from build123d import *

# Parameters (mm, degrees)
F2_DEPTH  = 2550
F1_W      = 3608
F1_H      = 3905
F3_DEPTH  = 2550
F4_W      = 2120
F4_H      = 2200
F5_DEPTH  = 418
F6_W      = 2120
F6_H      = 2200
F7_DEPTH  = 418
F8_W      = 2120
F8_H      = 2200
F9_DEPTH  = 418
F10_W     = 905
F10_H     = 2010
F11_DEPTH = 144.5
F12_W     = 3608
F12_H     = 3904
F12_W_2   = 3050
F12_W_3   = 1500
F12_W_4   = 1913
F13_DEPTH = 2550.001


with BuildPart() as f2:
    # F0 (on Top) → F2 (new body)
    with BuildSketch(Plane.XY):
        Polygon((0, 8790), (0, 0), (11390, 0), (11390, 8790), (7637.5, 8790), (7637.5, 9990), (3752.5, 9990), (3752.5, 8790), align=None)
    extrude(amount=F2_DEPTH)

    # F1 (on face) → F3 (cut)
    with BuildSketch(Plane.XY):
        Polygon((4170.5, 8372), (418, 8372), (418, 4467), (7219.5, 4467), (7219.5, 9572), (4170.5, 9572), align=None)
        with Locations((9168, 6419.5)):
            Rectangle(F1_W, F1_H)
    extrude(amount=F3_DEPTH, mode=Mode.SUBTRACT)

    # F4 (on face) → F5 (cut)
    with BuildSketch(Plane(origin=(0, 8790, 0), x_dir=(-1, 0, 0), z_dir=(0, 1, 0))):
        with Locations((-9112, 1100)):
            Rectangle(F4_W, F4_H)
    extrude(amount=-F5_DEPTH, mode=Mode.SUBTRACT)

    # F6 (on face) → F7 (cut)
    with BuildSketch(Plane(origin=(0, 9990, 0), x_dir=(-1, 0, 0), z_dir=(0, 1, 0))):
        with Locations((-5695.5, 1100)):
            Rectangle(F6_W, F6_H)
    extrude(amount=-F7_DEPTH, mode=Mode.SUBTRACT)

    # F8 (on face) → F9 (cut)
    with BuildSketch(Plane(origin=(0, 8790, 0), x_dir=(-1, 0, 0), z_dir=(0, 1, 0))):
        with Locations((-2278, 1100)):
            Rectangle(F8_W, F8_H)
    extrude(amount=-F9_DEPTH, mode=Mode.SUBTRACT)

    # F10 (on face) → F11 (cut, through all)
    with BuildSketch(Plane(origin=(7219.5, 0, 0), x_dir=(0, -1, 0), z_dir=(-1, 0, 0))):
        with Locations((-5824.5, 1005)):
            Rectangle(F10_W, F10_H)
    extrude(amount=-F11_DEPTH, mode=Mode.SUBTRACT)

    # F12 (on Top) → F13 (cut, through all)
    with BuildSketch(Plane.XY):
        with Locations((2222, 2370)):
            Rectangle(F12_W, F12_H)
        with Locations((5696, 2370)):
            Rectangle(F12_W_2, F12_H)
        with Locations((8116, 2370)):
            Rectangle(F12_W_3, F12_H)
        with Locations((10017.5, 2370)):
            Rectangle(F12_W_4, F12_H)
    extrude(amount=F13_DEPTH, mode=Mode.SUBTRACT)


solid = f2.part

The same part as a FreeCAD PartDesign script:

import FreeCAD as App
import Part
import Sketcher
Q = App.Units.Quantity

doc = App.newDocument("Part")
body = doc.addObject("PartDesign::Body", "Body")

sketch1 = doc.addObject("Sketcher::SketchObject", "Sketch")
body.addObject(sketch1)
sketch1.AttachmentSupport = (doc.XY_Plane, [""])
sketch1.MapMode = "FlatFace"
sketch1.addGeometry([
    Part.LineSegment(App.Vector(0, 8790, 0), App.Vector(0, 0, 0)),
    Part.LineSegment(App.Vector(0, 0, 0), App.Vector(11390, 0, 0)),
    Part.LineSegment(App.Vector(11390, 0, 0), App.Vector(11390, 8790, 0)),
    Part.LineSegment(App.Vector(11390, 8790, 0), App.Vector(7638, 8790, 0)),
    Part.LineSegment(App.Vector(7638, 8790, 0), App.Vector(7638, 9990, 0)),
    Part.LineSegment(App.Vector(7638, 9990, 0), App.Vector(3752, 9990, 0)),
    Part.LineSegment(App.Vector(3752, 9990, 0), App.Vector(3752, 8790, 0)),
    Part.LineSegment(App.Vector(3752, 8790, 0), App.Vector(0, 8790, 0)),
], False)
sketch1.addConstraint([
    Sketcher.Constraint("Coincident", 0, 2, 1, 1),
    Sketcher.Constraint("Coincident", 1, 2, 2, 1),
    Sketcher.Constraint("Coincident", 2, 2, 3, 1),
    Sketcher.Constraint("Coincident", 3, 2, 4, 1),
    Sketcher.Constraint("Coincident", 4, 2, 5, 1),
    Sketcher.Constraint("Coincident", 5, 2, 6, 1),
    Sketcher.Constraint("Coincident", 6, 2, 7, 1),
    Sketcher.Constraint("Coincident", 7, 2, 0, 1),
    Sketcher.Constraint("Vertical", 0),
    Sketcher.Constraint("Horizontal", 1),
    Sketcher.Constraint("Vertical", 2),
    Sketcher.Constraint("Horizontal", 3),
    Sketcher.Constraint("Vertical", 4),
    Sketcher.Constraint("Horizontal", 5),
    Sketcher.Constraint("Vertical", 6),
    Sketcher.Constraint("Horizontal", 7),
    Sketcher.Constraint("Coincident", 0, 2, -1, 1),
    Sketcher.Constraint("Horizontal", 3, 2, 6, 2),
    Sketcher.Constraint("Equal", 3, 7),
    Sketcher.Constraint("DistanceX", 1, 1, 1, 2, Q("11390 mm")),
    Sketcher.Constraint("DistanceX", 5, 2, 5, 1, Q("3885 mm")),
    Sketcher.Constraint("DistanceY", 0, 2, 0, 1, Q("8790 mm")),
    Sketcher.Constraint("DistanceY", 4, 1, 4, 2, Q("1200 mm")),
])
pad1 = doc.addObject("PartDesign::Pad", "Pad")
body.addObject(pad1)
pad1.Profile = sketch1
pad1.Length = 2550

sketch2 = doc.addObject("Sketcher::SketchObject", "Sketch001")
body.addObject(sketch2)
sketch2.AttachmentSupport = (doc.XY_Plane, [""])
sketch2.MapMode = "FlatFace"
sketch2.addGeometry([
    Part.LineSegment(App.Vector(4170, 8372, 0), App.Vector(418, 8372, 0)),
    Part.LineSegment(App.Vector(418, 8372, 0), App.Vector(418, 4467, 0)),
    Part.LineSegment(App.Vector(418, 4467, 0), App.Vector(7220, 4467, 0)),
    Part.LineSegment(App.Vector(7220, 4467, 0), App.Vector(7220, 9572, 0)),
    Part.LineSegment(App.Vector(7220, 9572, 0), App.Vector(4170, 9572, 0)),
    Part.LineSegment(App.Vector(4170, 9572, 0), App.Vector(4170, 8372, 0)),
    Part.LineSegment(App.Vector(7364, 8372, 0), App.Vector(7364, 4467, 0)),
    Part.LineSegment(App.Vector(7364, 4467, 0), App.Vector(10972, 4467, 0)),
    Part.LineSegment(App.Vector(10972, 4467, 0), App.Vector(10972, 8372, 0)),
    Part.LineSegment(App.Vector(10972, 8372, 0), App.Vector(7364, 8372, 0)),
], False)
sketch2.addConstraint([
    Sketcher.Constraint("Coincident", 0, 2, 1, 1),
    Sketcher.Constraint("Coincident", 1, 2, 2, 1),
    Sketcher.Constraint("Coincident", 2, 2, 3, 1),
    Sketcher.Constraint("Coincident", 3, 2, 4, 1),
    Sketcher.Constraint("Coincident", 4, 2, 5, 1),
    Sketcher.Constraint("Coincident", 5, 2, 0, 1),
    Sketcher.Constraint("Coincident", 6, 2, 7, 1),
    Sketcher.Constraint("Coincident", 7, 2, 8, 1),
    Sketcher.Constraint("Coincident", 8, 2, 9, 1),
    Sketcher.Constraint("Coincident", 9, 2, 6, 1),
    Sketcher.Constraint("Horizontal", 0),
    Sketcher.Constraint("Vertical", 1),
    Sketcher.Constraint("Horizontal", 2),
    Sketcher.Constraint("Vertical", 3),
    Sketcher.Constraint("Horizontal", 4),
    Sketcher.Constraint("Vertical", 5),
    Sketcher.Constraint("Vertical", 6),
    Sketcher.Constraint("Horizontal", 7),
    Sketcher.Constraint("Vertical", 8),
    Sketcher.Constraint("Horizontal", 9),
    Sketcher.Constraint("Horizontal", 2, 2, 6, 2),
    Sketcher.Constraint("Horizontal", 5, 2, 8, 2),
    Sketcher.Constraint("DistanceX", 4, 2, 4, 1, Q("3049 mm")),
    Sketcher.Constraint("DistanceX", 7, 1, 7, 2, Q("3608 mm")),
    Sketcher.Constraint("DistanceY", 1, 2, 1, 1, Q("3905 mm")),
    Sketcher.Constraint("DistanceY", 3, 1, 3, 2, Q("5105 mm")),
    Sketcher.Constraint("DistanceX", 0, 2, 0, 1, Q("3752.5 mm")),
    Sketcher.Constraint("DistanceX", -1, 1, 0, 2, Q("418 mm")),
    Sketcher.Constraint("DistanceY", -1, 1, 0, 2, Q("8372 mm")),
    Sketcher.Constraint("DistanceX", -1, 1, 6, 2, Q("7364 mm")),
])
pocket1 = doc.addObject("PartDesign::Pocket", "Pocket")
body.addObject(pocket1)
pocket1.Profile = sketch2
pocket1.Length = 2550
pocket1.Reversed = True

sketch3 = doc.addObject("Sketcher::SketchObject", "Sketch002")
body.addObject(sketch3)
sketch3.AttachmentSupport = (doc.XZ_Plane, [""])
sketch3.MapMode = "FlatFace"
sketch3.AttachmentOffset = App.Placement(App.Vector(0, 0, -8790), App.Rotation())
sketch3.addGeometry([
    Part.LineSegment(App.Vector(10172, 2200, 0), App.Vector(10172, 0, 0)),
    Part.LineSegment(App.Vector(10172, 0, 0), App.Vector(8052, 0, 0)),
    Part.LineSegment(App.Vector(8052, 0, 0), App.Vector(8052, 2200, 0)),
    Part.LineSegment(App.Vector(8052, 2200, 0), App.Vector(10172, 2200, 0)),
], False)
sketch3.addConstraint([
    Sketcher.Constraint("Coincident", 0, 2, 1, 1),
    Sketcher.Constraint("Coincident", 1, 2, 2, 1),
    Sketcher.Constraint("Coincident", 2, 2, 3, 1),
    Sketcher.Constraint("Coincident", 3, 2, 0, 1),
    Sketcher.Constraint("Vertical", 0),
    Sketcher.Constraint("Horizontal", 1),
    Sketcher.Constraint("Vertical", 2),
    Sketcher.Constraint("Horizontal", 3),
    Sketcher.Constraint("PointOnObject", 0, 2, -1),
    Sketcher.Constraint("DistanceX", 1, 2, 1, 1, Q("2120 mm")),
    Sketcher.Constraint("DistanceY", 0, 2, 0, 1, Q("2200 mm")),
    Sketcher.Constraint("DistanceX", -1, 1, 0, 2, Q("10172 mm")),
])
pocket2 = doc.addObject("PartDesign::Pocket", "Pocket001")
body.addObject(pocket2)
pocket2.Profile = sketch3
pocket2.Length = 418
pocket2.Reversed = True

sketch4 = doc.addObject("Sketcher::SketchObject", "Sketch003")
body.addObject(sketch4)
sketch4.AttachmentSupport = (doc.XZ_Plane, [""])
sketch4.MapMode = "FlatFace"
sketch4.AttachmentOffset = App.Placement(App.Vector(0, 0, -9990), App.Rotation())
sketch4.addGeometry([
    Part.LineSegment(App.Vector(6756, 2200, 0), App.Vector(6756, 0, 0)),
    Part.LineSegment(App.Vector(6756, 0, 0), App.Vector(4636, 0, 0)),
    Part.LineSegment(App.Vector(4636, 0, 0), App.Vector(4636, 2200, 0)),
    Part.LineSegment(App.Vector(4636, 2200, 0), App.Vector(6756, 2200, 0)),
], False)
sketch4.addConstraint([
    Sketcher.Constraint("Coincident", 0, 2, 1, 1),
    Sketcher.Constraint("Coincident", 1, 2, 2, 1),
    Sketcher.Constraint("Coincident", 2, 2, 3, 1),
    Sketcher.Constraint("Coincident", 3, 2, 0, 1),
    Sketcher.Constraint("Vertical", 0),
    Sketcher.Constraint("Horizontal", 1),
    Sketcher.Constraint("Vertical", 2),
    Sketcher.Constraint("Horizontal", 3),
    Sketcher.Constraint("PointOnObject", 0, 2, -1),
    Sketcher.Constraint("DistanceX", 1, 2, 1, 1, Q("2120 mm")),
    Sketcher.Constraint("DistanceY", 0, 2, 0, 1, Q("2200 mm")),
    Sketcher.Constraint("DistanceX", -1, 1, 0, 2, Q("6755.5 mm")),
])
pocket3 = doc.addObject("PartDesign::Pocket", "Pocket002")
body.addObject(pocket3)
pocket3.Profile = sketch4
pocket3.Length = 418
pocket3.Reversed = True

sketch5 = doc.addObject("Sketcher::SketchObject", "Sketch004")
body.addObject(sketch5)
sketch5.AttachmentSupport = (doc.XZ_Plane, [""])
sketch5.MapMode = "FlatFace"
sketch5.AttachmentOffset = App.Placement(App.Vector(0, 0, -8790), App.Rotation())
sketch5.addGeometry([
    Part.LineSegment(App.Vector(3338, 2200, 0), App.Vector(3338, 0, 0)),
    Part.LineSegment(App.Vector(3338, 0, 0), App.Vector(1218, 0, 0)),
    Part.LineSegment(App.Vector(1218, 0, 0), App.Vector(1218, 2200, 0)),
    Part.LineSegment(App.Vector(1218, 2200, 0), App.Vector(3338, 2200, 0)),
], False)
sketch5.addConstraint([
    Sketcher.Constraint("Coincident", 0, 2, 1, 1),
    Sketcher.Constraint("Coincident", 1, 2, 2, 1),
    Sketcher.Constraint("Coincident", 2, 2, 3, 1),
    Sketcher.Constraint("Coincident", 3, 2, 0, 1),
    Sketcher.Constraint("Vertical", 0),
    Sketcher.Constraint("Horizontal", 1),
    Sketcher.Constraint("Vertical", 2),
    Sketcher.Constraint("Horizontal", 3),
    Sketcher.Constraint("PointOnObject", 0, 2, -1),
    Sketcher.Constraint("DistanceX", 1, 2, 1, 1, Q("2120 mm")),
    Sketcher.Constraint("DistanceY", 0, 2, 0, 1, Q("2200 mm")),
    Sketcher.Constraint("DistanceX", -1, 1, 0, 2, Q("3338 mm")),
])
pocket4 = doc.addObject("PartDesign::Pocket", "Pocket003")
body.addObject(pocket4)
pocket4.Profile = sketch5
pocket4.Length = 418
pocket4.Reversed = True

sketch6 = doc.addObject("Sketcher::SketchObject", "Sketch005")
body.addObject(sketch6)
sketch6.AttachmentSupport = (doc.YZ_Plane, [""])
sketch6.MapMode = "FlatFace"
sketch6.AttachmentOffset = App.Placement(App.Vector(0, 0, 7219.5), App.Rotation())
sketch6.addGeometry([
    Part.LineSegment(App.Vector(6277, 2010, 0), App.Vector(6277, 0, 0)),
    Part.LineSegment(App.Vector(6277, 0, 0), App.Vector(5372, 0, 0)),
    Part.LineSegment(App.Vector(5372, 0, 0), App.Vector(5372, 2010, 0)),
    Part.LineSegment(App.Vector(5372, 2010, 0), App.Vector(6277, 2010, 0)),
], False)
sketch6.addConstraint([
    Sketcher.Constraint("Coincident", 0, 2, 1, 1),
    Sketcher.Constraint("Coincident", 1, 2, 2, 1),
    Sketcher.Constraint("Coincident", 2, 2, 3, 1),
    Sketcher.Constraint("Coincident", 3, 2, 0, 1),
    Sketcher.Constraint("Vertical", 0),
    Sketcher.Constraint("Horizontal", 1),
    Sketcher.Constraint("Vertical", 2),
    Sketcher.Constraint("Horizontal", 3),
    Sketcher.Constraint("PointOnObject", 0, 2, -1),
    Sketcher.Constraint("DistanceX", 1, 2, 1, 1, Q("905 mm")),
    Sketcher.Constraint("DistanceY", 0, 2, 0, 1, Q("2010 mm")),
    Sketcher.Constraint("DistanceX", -1, 1, 0, 2, Q("6277 mm")),
])
pocket5 = doc.addObject("PartDesign::Pocket", "Pocket004")
body.addObject(pocket5)
pocket5.Profile = sketch6
pocket5.Length = 144.5
pocket5.Reversed = True

sketch7 = doc.addObject("Sketcher::SketchObject", "Sketch006")
body.addObject(sketch7)
sketch7.AttachmentSupport = (doc.XY_Plane, [""])
sketch7.MapMode = "FlatFace"
sketch7.addGeometry([
    Part.LineSegment(App.Vector(418, 4322, 0), App.Vector(418, 418, 0)),
    Part.LineSegment(App.Vector(418, 418, 0), App.Vector(4026, 418, 0)),
    Part.LineSegment(App.Vector(4026, 418, 0), App.Vector(4026, 4322, 0)),
    Part.LineSegment(App.Vector(4026, 4322, 0), App.Vector(418, 4322, 0)),
    Part.LineSegment(App.Vector(4171, 4322, 0), App.Vector(4171, 418, 0)),
    Part.LineSegment(App.Vector(4171, 418, 0), App.Vector(7221, 418, 0)),
    Part.LineSegment(App.Vector(7221, 418, 0), App.Vector(7221, 4322, 0)),
    Part.LineSegment(App.Vector(7221, 4322, 0), App.Vector(4171, 4322, 0)),
    Part.LineSegment(App.Vector(7366, 4322, 0), App.Vector(7366, 418, 0)),
    Part.LineSegment(App.Vector(7366, 418, 0), App.Vector(8866, 418, 0)),
    Part.LineSegment(App.Vector(8866, 418, 0), App.Vector(8866, 4322, 0)),
    Part.LineSegment(App.Vector(8866, 4322, 0), App.Vector(7366, 4322, 0)),
    Part.LineSegment(App.Vector(9061, 4322, 0), App.Vector(9061, 418, 0)),
    Part.LineSegment(App.Vector(9061, 418, 0), App.Vector(10974, 418, 0)),
    Part.LineSegment(App.Vector(10974, 418, 0), App.Vector(10974, 4322, 0)),
    Part.LineSegment(App.Vector(10974, 4322, 0), App.Vector(9061, 4322, 0)),
], False)
sketch7.addConstraint([
    Sketcher.Constraint("Coincident", 0, 2, 1, 1),
    Sketcher.Constraint("Coincident", 1, 2, 2, 1),
    Sketcher.Constraint("Coincident", 2, 2, 3, 1),
    Sketcher.Constraint("Coincident", 3, 2, 0, 1),
    Sketcher.Constraint("Coincident", 4, 2, 5, 1),
    Sketcher.Constraint("Coincident", 5, 2, 6, 1),
    Sketcher.Constraint("Coincident", 6, 2, 7, 1),
    Sketcher.Constraint("Coincident", 7, 2, 4, 1),
    Sketcher.Constraint("Coincident", 8, 2, 9, 1),
    Sketcher.Constraint("Coincident", 9, 2, 10, 1),
    Sketcher.Constraint("Coincident", 10, 2, 11, 1),
    Sketcher.Constraint("Coincident", 11, 2, 8, 1),
    Sketcher.Constraint("Coincident", 12, 2, 13, 1),
    Sketcher.Constraint("Coincident", 13, 2, 14, 1),
    Sketcher.Constraint("Coincident", 14, 2, 15, 1),
    Sketcher.Constraint("Coincident", 15, 2, 12, 1),
    Sketcher.Constraint("Vertical", 0),
    Sketcher.Constraint("Horizontal", 1),
    Sketcher.Constraint("Vertical", 2),
    Sketcher.Constraint("Horizontal", 3),
    Sketcher.Constraint("Vertical", 4),
    Sketcher.Constraint("Horizontal", 5),
    Sketcher.Constraint("Vertical", 6),
    Sketcher.Constraint("Horizontal", 7),
    Sketcher.Constraint("Vertical", 8),
    Sketcher.Constraint("Horizontal", 9),
    Sketcher.Constraint("Vertical", 10),
    Sketcher.Constraint("Horizontal", 11),
    Sketcher.Constraint("Vertical", 12),
    Sketcher.Constraint("Horizontal", 13),
    Sketcher.Constraint("Vertical", 14),
    Sketcher.Constraint("Horizontal", 15),
    Sketcher.Constraint("Horizontal", 1, 2, 4, 2),
    Sketcher.Constraint("Horizontal", 3, 2, 6, 2),
    Sketcher.Constraint("Horizontal", 5, 2, 8, 2),
    Sketcher.Constraint("Horizontal", 7, 2, 10, 2),
    Sketcher.Constraint("Horizontal", 9, 2, 12, 2),
    Sketcher.Constraint("Horizontal", 11, 2, 14, 2),
    Sketcher.Constraint("DistanceX", 1, 1, 1, 2, Q("3608 mm")),
    Sketcher.Constraint("DistanceX", 5, 1, 5, 2, Q("3050 mm")),
    Sketcher.Constraint("DistanceX", 9, 1, 9, 2, Q("1500 mm")),
    Sketcher.Constraint("DistanceX", 13, 1, 13, 2, Q("1913 mm")),
    Sketcher.Constraint("DistanceY", 0, 2, 0, 1, Q("3904 mm")),
    Sketcher.Constraint("DistanceX", -1, 1, 0, 2, Q("418 mm")),
    Sketcher.Constraint("DistanceY", -1, 1, 0, 2, Q("418 mm")),
    Sketcher.Constraint("DistanceX", -1, 1, 4, 2, Q("4171 mm")),
    Sketcher.Constraint("DistanceX", -1, 1, 8, 2, Q("7366 mm")),
    Sketcher.Constraint("DistanceX", -1, 1, 12, 2, Q("9061 mm")),
])
pocket6 = doc.addObject("PartDesign::Pocket", "Pocket005")
body.addObject(pocket6)
pocket6.Profile = sketch7
pocket6.Type = "ThroughAll"
pocket6.Reversed = True

doc.recompute()
